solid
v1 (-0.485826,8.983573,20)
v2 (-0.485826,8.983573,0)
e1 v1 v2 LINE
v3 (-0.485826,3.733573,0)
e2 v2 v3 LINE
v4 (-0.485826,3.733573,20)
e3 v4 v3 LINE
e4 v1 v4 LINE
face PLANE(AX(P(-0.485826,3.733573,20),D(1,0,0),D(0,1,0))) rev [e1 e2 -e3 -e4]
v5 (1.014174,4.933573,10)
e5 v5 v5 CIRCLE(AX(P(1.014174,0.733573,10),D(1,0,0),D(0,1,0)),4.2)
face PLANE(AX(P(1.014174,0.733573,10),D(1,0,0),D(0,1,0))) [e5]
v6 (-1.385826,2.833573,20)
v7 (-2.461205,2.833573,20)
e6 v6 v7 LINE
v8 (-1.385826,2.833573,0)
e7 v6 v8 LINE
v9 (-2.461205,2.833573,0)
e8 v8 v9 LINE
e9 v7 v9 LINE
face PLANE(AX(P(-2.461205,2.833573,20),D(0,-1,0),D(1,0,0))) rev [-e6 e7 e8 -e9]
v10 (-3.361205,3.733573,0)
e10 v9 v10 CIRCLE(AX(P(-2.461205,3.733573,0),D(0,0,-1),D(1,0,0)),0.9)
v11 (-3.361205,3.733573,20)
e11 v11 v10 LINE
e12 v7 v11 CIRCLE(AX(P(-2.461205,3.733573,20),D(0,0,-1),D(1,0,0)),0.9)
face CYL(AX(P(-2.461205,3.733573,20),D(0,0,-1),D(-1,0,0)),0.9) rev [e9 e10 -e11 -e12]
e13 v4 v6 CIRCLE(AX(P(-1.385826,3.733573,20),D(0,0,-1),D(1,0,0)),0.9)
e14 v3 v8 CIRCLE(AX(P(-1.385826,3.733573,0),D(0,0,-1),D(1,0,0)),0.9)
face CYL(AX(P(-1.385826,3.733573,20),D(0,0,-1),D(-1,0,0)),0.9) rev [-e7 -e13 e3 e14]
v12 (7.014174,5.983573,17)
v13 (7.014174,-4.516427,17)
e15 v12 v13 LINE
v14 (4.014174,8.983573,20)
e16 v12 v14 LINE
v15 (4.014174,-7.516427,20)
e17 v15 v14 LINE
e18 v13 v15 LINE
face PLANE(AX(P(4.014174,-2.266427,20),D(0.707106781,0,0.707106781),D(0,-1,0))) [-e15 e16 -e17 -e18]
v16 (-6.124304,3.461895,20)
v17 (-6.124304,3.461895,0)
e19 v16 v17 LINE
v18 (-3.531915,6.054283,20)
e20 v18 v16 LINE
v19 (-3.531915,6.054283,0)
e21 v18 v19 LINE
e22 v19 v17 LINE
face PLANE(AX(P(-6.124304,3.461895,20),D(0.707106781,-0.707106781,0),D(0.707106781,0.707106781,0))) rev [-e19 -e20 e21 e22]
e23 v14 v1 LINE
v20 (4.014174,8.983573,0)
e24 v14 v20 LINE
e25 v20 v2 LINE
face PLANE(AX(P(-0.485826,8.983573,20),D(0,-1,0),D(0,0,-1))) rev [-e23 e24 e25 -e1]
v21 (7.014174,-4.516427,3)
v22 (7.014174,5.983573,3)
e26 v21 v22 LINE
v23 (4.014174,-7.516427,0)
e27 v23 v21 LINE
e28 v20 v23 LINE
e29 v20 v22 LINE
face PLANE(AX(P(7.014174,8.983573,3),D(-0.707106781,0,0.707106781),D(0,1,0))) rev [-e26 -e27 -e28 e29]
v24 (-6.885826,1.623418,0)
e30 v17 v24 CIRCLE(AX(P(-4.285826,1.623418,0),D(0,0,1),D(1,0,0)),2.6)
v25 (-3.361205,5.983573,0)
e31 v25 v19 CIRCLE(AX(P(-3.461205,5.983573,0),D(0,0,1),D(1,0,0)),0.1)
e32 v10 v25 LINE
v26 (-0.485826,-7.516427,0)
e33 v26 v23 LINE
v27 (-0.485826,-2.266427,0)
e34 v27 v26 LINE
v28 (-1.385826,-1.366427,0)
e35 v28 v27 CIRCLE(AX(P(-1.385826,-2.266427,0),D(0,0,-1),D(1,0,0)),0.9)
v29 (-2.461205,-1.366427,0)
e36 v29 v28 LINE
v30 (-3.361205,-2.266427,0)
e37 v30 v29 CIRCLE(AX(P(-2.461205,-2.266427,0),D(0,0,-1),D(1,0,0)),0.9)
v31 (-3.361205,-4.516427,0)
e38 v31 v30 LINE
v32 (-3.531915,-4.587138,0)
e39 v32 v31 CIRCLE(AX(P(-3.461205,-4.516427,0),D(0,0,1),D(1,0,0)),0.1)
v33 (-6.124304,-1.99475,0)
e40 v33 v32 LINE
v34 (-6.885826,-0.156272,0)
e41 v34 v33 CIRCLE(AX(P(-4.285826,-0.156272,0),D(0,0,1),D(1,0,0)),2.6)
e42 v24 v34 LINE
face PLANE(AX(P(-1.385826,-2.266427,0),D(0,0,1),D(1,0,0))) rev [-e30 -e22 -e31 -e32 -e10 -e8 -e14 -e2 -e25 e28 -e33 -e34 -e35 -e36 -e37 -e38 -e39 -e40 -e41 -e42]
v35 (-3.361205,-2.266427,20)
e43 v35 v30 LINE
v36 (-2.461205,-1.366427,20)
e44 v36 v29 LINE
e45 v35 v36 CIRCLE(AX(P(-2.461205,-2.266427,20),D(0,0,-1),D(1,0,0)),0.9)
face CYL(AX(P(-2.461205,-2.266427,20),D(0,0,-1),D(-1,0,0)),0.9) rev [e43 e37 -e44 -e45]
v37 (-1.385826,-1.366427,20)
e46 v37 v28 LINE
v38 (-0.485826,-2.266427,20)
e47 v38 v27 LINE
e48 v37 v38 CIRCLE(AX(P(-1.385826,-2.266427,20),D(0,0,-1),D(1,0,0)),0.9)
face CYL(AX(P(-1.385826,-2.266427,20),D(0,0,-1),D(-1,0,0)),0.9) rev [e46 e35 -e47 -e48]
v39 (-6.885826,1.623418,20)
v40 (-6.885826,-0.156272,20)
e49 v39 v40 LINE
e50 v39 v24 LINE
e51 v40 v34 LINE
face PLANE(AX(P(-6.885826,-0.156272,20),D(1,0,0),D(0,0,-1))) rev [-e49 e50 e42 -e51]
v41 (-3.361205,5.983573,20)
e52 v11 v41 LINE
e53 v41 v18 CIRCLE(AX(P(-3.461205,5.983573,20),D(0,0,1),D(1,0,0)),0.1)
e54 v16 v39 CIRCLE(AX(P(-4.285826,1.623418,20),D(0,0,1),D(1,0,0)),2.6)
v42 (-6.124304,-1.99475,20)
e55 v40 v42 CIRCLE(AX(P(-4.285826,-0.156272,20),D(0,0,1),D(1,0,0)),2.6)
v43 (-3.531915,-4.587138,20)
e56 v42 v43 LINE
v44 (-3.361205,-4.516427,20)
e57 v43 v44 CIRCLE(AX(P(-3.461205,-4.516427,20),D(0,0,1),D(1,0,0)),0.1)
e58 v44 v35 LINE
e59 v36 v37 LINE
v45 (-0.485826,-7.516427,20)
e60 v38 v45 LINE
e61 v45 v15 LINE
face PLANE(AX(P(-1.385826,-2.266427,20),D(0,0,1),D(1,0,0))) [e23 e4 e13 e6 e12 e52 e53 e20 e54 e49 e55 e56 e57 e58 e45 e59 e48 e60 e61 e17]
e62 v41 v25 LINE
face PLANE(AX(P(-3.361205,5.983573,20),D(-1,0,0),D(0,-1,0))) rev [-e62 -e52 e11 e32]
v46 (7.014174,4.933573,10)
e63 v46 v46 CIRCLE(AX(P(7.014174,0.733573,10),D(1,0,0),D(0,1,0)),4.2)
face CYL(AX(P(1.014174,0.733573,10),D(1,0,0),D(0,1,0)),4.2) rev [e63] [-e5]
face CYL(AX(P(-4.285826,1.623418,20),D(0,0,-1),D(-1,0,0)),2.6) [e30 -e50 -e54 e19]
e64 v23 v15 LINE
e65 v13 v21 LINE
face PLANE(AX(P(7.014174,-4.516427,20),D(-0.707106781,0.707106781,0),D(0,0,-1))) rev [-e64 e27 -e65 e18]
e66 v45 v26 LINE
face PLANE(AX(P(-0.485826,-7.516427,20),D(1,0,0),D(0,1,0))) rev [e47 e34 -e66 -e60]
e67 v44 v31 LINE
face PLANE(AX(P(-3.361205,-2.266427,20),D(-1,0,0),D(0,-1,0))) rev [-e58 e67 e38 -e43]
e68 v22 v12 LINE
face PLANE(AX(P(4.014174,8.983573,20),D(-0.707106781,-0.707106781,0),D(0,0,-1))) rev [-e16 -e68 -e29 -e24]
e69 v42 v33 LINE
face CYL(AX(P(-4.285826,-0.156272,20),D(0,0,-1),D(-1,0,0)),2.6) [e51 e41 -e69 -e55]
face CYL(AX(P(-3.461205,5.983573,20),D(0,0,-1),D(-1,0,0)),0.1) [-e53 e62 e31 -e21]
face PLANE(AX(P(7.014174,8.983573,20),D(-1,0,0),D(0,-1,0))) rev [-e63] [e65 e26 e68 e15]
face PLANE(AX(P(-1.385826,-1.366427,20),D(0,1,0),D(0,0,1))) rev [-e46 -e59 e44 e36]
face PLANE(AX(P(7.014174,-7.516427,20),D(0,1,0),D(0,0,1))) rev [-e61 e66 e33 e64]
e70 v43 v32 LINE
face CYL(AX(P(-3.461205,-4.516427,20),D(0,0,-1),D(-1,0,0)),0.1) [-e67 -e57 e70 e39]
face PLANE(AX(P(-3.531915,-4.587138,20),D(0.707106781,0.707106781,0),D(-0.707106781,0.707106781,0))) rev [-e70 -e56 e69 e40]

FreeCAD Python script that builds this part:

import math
import FreeCAD as App
import Part
import Sketcher

V = App.Vector


def edges_at(feature, points):
    """Names of the edges that pass closest to the given points."""
    edges = feature.Shape.Edges
    near = lambda p: min(range(len(edges)), key=lambda i: edges[i].distToShape(Part.Vertex(*p))[0])
    return sorted({f"Edge{near(p) + 1}" for p in points})

doc = App.newDocument("Part")
body = doc.addObject("PartDesign::Body", "Body")

sketch1 = doc.addObject("Sketcher::SketchObject", "Sketch")
body.addObject(sketch1)
sketch1.AttachmentSupport = (doc.XY_Plane, [""])
sketch1.MapMode = "FlatFace"
sketch1.addGeometry([
    Part.LineSegment(V(-2.46, -1.37, 0), V(-1.39, -1.37, 0)),
    Part.ArcOfCircle(Part.Circle(V(-1.39, -2.27, 0), V(0, 0, 1), 0.9), math.radians(0), math.radians(90)),
    Part.LineSegment(V(-0.49, -2.27, 0), V(-0.49, -7.52, 0)),
    Part.LineSegment(V(-0.49, -7.52, 0), V(7.01, -7.52, 0)),
    Part.LineSegment(V(7.01, -7.52, 0), V(7.01, 8.98, 0)),
    Part.LineSegment(V(7.01, 8.98, 0), V(-0.49, 8.98, 0)),
    Part.LineSegment(V(-0.49, 8.98, 0), V(-0.49, 3.73, 0)),
    Part.ArcOfCircle(Part.Circle(V(-1.39, 3.73, 0), V(0, 0, 1), 0.9), math.radians(-90), math.radians(0)),
    Part.LineSegment(V(-1.39, 2.83, 0), V(-2.46, 2.83, 0)),
    Part.ArcOfCircle(Part.Circle(V(-2.46, 3.73, 0), V(0, 0, 1), 0.9), math.radians(180), math.radians(270)),
    Part.LineSegment(V(-3.36, 3.73, 0), V(-3.36, 5.98, 0)),
    Part.ArcOfCircle(Part.Circle(V(-3.46, 5.98, 0), V(0, 0, 1), 0.1), math.radians(0), math.radians(135)),
    Part.LineSegment(V(-3.53, 6.05, 0), V(-6.12, 3.46, 0)),
    Part.ArcOfCircle(Part.Circle(V(-4.29, 1.62, 0), V(0, 0, 1), 2.6), math.radians(135), math.radians(180)),
    Part.LineSegment(V(-6.89, 1.62, 0), V(-6.89, -0.16, 0)),
    Part.ArcOfCircle(Part.Circle(V(-4.29, -0.16, 0), V(0, 0, 1), 2.6), math.radians(-180), math.radians(-135)),
    Part.LineSegment(V(-6.12, -1.99, 0), V(-3.53, -4.59, 0)),
    Part.ArcOfCircle(Part.Circle(V(-3.46, -4.52, 0), V(0, 0, 1), 0.1), math.radians(-135), math.radians(0)),
    Part.LineSegment(V(-3.36, -4.52, 0), V(-3.36, -2.27, 0)),
    Part.ArcOfCircle(Part.Circle(V(-2.46, -2.27, 0), V(0, 0, 1), 0.9), math.radians(90), math.radians(180)),
], False)
sketch1.addConstraint([
    Sketcher.Constraint("Tangent", 0, 2, 1, 2),
    Sketcher.Constraint("Tangent", 1, 1, 2, 1),
    Sketcher.Constraint("Coincident", 2, 2, 3, 1),
    Sketcher.Constraint("Coincident", 3, 2, 4, 1),
    Sketcher.Constraint("Coincident", 4, 2, 5, 1),
    Sketcher.Constraint("Coincident", 5, 2, 6, 1),
    Sketcher.Constraint("Tangent", 6, 2, 7, 2),
    Sketcher.Constraint("Tangent", 7, 1, 8, 1),
    Sketcher.Constraint("Tangent", 8, 2, 9, 2),
    Sketcher.Constraint("Tangent", 9, 1, 10, 1),
    Sketcher.Constraint("Tangent", 10, 2, 11, 1),
    Sketcher.Constraint("Tangent", 11, 2, 12, 1),
    Sketcher.Constraint("Tangent", 12, 2, 13, 1),
    Sketcher.Constraint("Tangent", 13, 2, 14, 1),
    Sketcher.Constraint("Tangent", 14, 2, 15, 1),
    Sketcher.Constraint("Tangent", 15, 2, 16, 1),
    Sketcher.Constraint("Tangent", 16, 2, 17, 1),
    Sketcher.Constraint("Tangent", 17, 2, 18, 1),
    Sketcher.Constraint("Tangent", 18, 2, 19, 2),
    Sketcher.Constraint("Tangent", 19, 1, 0, 1),
    Sketcher.Constraint("Horizontal", 0),
    Sketcher.Constraint("Vertical", 2),
    Sketcher.Constraint("Horizontal", 3),
    Sketcher.Constraint("Vertical", 4),
    Sketcher.Constraint("Horizontal", 5),
    Sketcher.Constraint("Vertical", 6),
    Sketcher.Constraint("Horizontal", 8),
    Sketcher.Constraint("Vertical", 10),
    Sketcher.Constraint("Vertical", 14),
    Sketcher.Constraint("Vertical", 18),
    Sketcher.Constraint("Equal", 1, 7),
    Sketcher.Constraint("Equal", 7, 9),
    Sketcher.Constraint("Equal", 13, 15),
    Sketcher.Constraint("Equal", 11, 17),
    Sketcher.Constraint("Equal", 9, 19),
    Sketcher.Constraint("Perpendicular", 12, 16),
    Sketcher.Constraint("Vertical", 1, 3, 7, 3),
    Sketcher.Constraint("Vertical", 11, 3, 17, 3),
    Sketcher.Constraint("Vertical", 12, 2, 15, 2),
    Sketcher.Constraint("Equal", 2, 6),
    Sketcher.Constraint("Equal", 10, 18),
    Sketcher.Constraint("Radius", 1, 0.9),
    Sketcher.Constraint("Radius", 11, 0.1),
    Sketcher.Constraint("Radius", 13, 2.6),
    Sketcher.Constraint("DistanceX", 3, 1, 3, 2, 7.5),
    Sketcher.Constraint("DistanceY", 4, 1, 4, 2, 16.5),
    Sketcher.Constraint("DistanceY", 1, 3, 7, 3, 6.0),
    Sketcher.Constraint("DistanceY", 2, 2, 17, 3, 3.0),
    Sketcher.Constraint("DistanceX", 13, 3, 7, 3, 2.9),
    Sketcher.Constraint("DistanceX", 0, 1, 0, 2, 1.075379),
    Sketcher.Constraint("DistanceY", 15, 2, -1, 1, 1.99475),
    Sketcher.Constraint("DistanceX", 1, 3, -1, 1, 1.385826),
])
pad1 = doc.addObject("PartDesign::Pad", "Pad")
body.addObject(pad1)
pad1.Profile = sketch1
pad1.Length = 20
doc.recompute()

chamfer = doc.addObject("PartDesign::Chamfer", "Chamfer")
body.addObject(chamfer)
chamfer.Base = (pad1, edges_at(pad1, [
    (7.014, 0.734, 20),
    (7.014, 0.734, 0),
    (7.014, 8.984, 10),
    (7.014, -7.516, 10),
]))
chamfer.Size = 3

sketch2 = doc.addObject("Sketcher::SketchObject", "Sketch001")
body.addObject(sketch2)
sketch2.AttachmentSupport = (doc.YZ_Plane, [""])
sketch2.MapMode = "FlatFace"
sketch2.AttachmentOffset = App.Placement(V(0, 0, 1.014174), App.Rotation())
sketch2.addGeometry(Part.Circle(V(0.7, 10, 0), V(0, 0, 1), 4.2), False)
sketch2.addConstraint([
    Sketcher.Constraint("Diameter", 0, 8.4),
    Sketcher.Constraint("DistanceY", -1, 1, 0, 3, 10.0),
    Sketcher.Constraint("DistanceX", -1, 1, 0, 3, 0.733573),
])
pocket1 = doc.addObject("PartDesign::Pocket", "Pocket")
body.addObject(pocket1)
pocket1.Profile = sketch2
pocket1.Length = 6
pocket1.Reversed = True

doc.recompute()
